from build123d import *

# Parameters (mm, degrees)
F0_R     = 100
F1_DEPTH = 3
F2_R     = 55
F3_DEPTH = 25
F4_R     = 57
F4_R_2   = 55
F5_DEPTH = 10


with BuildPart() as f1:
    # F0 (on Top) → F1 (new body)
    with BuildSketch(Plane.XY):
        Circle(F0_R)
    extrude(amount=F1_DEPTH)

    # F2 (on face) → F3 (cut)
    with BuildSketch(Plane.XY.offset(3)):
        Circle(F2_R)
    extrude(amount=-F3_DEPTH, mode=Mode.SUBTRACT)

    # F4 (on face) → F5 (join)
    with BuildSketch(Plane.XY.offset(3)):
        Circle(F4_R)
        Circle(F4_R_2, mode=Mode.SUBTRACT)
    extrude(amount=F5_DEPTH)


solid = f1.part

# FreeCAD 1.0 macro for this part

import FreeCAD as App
import Part
import Sketcher

doc = App.newDocument("Part")
body = doc.addObject("PartDesign::Body", "Body")

sketch1 = body.newObject("Sketcher::SketchObject", "Sketch")
sketch1.AttachmentSupport = (doc.getObject("XY_Plane"), [""])
sketch1.MapMode = "FlatFace"
sketch1.addGeometry(Part.Circle(App.Vector(0, 0, 0), App.Vector(0, 0, 1), 100), False)
sketch1.addConstraint([
    Sketcher.Constraint("Coincident", 0, 3, -1, 1),
    Sketcher.Constraint("Diameter", 0, 200.0),
])
pad1 = body.newObject("PartDesign::Pad", "Pad")
pad1.Profile = sketch1
pad1.Length = 3

sketch2 = body.newObject("Sketcher::SketchObject", "Sketch001")
sketch2.AttachmentSupport = (doc.getObject("XY_Plane"), [""])
sketch2.MapMode = "FlatFace"
sketch2.AttachmentOffset = App.Placement(App.Vector(0, 0, 3), App.Rotation())
sketch2.addGeometry(Part.Circle(App.Vector(0, 0, 0), App.Vector(0, 0, 1), 55), False)
sketch2.addConstraint([
    Sketcher.Constraint("Coincident", 0, 3, -1, 1),
    Sketcher.Constraint("Diameter", 0, 110.0),
])
pocket1 = body.newObject("PartDesign::Pocket", "Pocket")
pocket1.Profile = sketch2
pocket1.Length = 25

sketch3 = body.newObject("Sketcher::SketchObject", "Sketch002")
sketch3.AttachmentSupport = (doc.getObject("XY_Plane"), [""])
sketch3.MapMode = "FlatFace"
sketch3.AttachmentOffset = App.Placement(App.Vector(0, 0, 3), App.Rotation())
sketch3.addGeometry([
    Part.Circle(App.Vector(0, 0, 0), App.Vector(0, 0, 1), 57),
    Part.Circle(App.Vector(0, 0, 0), App.Vector(0, 0, 1), 55),
], False)
sketch3.addConstraint([
    Sketcher.Constraint("Coincident", 0, 3, -1, 1),
    Sketcher.Constraint("Coincident", 1, 3, -1, 1),
    Sketcher.Constraint("Diameter", 0, 114.0),
    Sketcher.Constraint("Diameter", 1, 110.0),
])
pad2 = body.newObject("PartDesign::Pad", "Pad001")
pad2.Profile = sketch3
pad2.Length = 10

doc.recompute()
